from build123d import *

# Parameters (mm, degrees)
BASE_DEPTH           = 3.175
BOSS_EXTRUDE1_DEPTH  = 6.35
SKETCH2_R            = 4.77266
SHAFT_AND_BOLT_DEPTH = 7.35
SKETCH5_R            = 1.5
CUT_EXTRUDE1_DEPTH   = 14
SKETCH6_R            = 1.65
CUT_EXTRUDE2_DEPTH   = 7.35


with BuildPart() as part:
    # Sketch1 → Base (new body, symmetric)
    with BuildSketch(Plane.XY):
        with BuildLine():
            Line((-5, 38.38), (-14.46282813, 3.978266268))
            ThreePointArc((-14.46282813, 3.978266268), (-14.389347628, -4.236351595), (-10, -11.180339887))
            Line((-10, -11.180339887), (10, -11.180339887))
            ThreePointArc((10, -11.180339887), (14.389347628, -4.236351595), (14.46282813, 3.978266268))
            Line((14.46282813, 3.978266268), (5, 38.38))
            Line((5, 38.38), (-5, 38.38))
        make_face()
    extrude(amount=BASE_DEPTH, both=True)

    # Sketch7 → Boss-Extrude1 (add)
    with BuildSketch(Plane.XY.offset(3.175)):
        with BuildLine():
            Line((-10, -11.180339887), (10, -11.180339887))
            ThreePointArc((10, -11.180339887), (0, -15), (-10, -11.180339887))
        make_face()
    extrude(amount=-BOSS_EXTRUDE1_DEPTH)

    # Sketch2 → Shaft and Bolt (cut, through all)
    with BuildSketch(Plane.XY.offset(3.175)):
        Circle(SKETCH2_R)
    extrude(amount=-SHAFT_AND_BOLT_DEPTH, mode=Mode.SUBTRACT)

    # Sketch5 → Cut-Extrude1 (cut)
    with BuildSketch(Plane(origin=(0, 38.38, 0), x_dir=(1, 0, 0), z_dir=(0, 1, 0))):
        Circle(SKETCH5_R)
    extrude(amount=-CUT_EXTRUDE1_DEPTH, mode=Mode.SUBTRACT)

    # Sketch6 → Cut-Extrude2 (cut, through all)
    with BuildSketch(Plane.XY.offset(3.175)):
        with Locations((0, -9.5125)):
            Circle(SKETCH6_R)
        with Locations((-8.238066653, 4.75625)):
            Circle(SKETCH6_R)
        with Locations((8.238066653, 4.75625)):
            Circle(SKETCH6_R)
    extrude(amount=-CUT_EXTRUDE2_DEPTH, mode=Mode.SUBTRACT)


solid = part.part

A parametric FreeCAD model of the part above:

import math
import FreeCAD as App
import Part
import Sketcher
from FreeCAD import Vector
Q = App.Units.Quantity

doc = App.newDocument("Part")
body = doc.addObject("PartDesign::Body", "Body")

# Sketch on XY plane
sketch1 = doc.addObject("Sketcher::SketchObject", "Sketch")
body.addObject(sketch1)
sketch1.AttachmentSupport = (doc.XY_Plane, [""])
sketch1.MapMode = "FlatFace"
sketch1.addGeometry([
    Part.LineSegment(Vector(-5, 38, 0), Vector(-14, 4, 0)),  # 0
    Part.ArcOfCircle(Part.Circle(Vector(0, 0, 0), Vector(0, 0, 1), 15), math.radians(165), math.radians(228)),  # 1
    Part.LineSegment(Vector(-10, -11, 0), Vector(10, -11, 0)),  # 2
    Part.ArcOfCircle(Part.Circle(Vector(0, 0, 0), Vector(0, 0, 1), 15), math.radians(-48), math.radians(15)),  # 3
    Part.LineSegment(Vector(14, 4, 0), Vector(5, 38, 0)),  # 4
    Part.LineSegment(Vector(5, 38, 0), Vector(-5, 38, 0)),  # 5
], False)
sketch1.addConstraint([
    Sketcher.Constraint("Tangent", 0, 2, 1, 1),
    Sketcher.Constraint("Coincident", 1, 2, 2, 1),
    Sketcher.Constraint("Coincident", 2, 2, 3, 1),
    Sketcher.Constraint("Tangent", 3, 2, 4, 1),
    Sketcher.Constraint("Coincident", 4, 2, 5, 1),
    Sketcher.Constraint("Coincident", 5, 2, 0, 1),
    Sketcher.Constraint("Horizontal", 2),
    Sketcher.Constraint("Horizontal", 5),
    Sketcher.Constraint("Coincident", 1, 3, -1, 1),
    Sketcher.Constraint("Coincident", 3, 3, -1, 1),
    Sketcher.Constraint("Equal", 1, 3),
    Sketcher.Constraint("Horizontal", 0, 2, 3, 2),
    Sketcher.Constraint("Radius", 1, Q("15 mm")),
    Sketcher.Constraint("DistanceX", 2, 1, 2, 2, Q("20 mm")),
    Sketcher.Constraint("DistanceX", 5, 2, 5, 1, Q("10 mm")),
    Sketcher.Constraint("DistanceY", -1, 1, 4, 2, Q("38.38 mm")),
])
pad1 = doc.addObject("PartDesign::Pad", "Pad")
body.addObject(pad1)
pad1.Profile = sketch1
pad1.Length = 6.35
pad1.Midplane = True

# Sketch on XY plane
sketch2 = doc.addObject("Sketcher::SketchObject", "Sketch001")
body.addObject(sketch2)
sketch2.AttachmentSupport = (doc.XY_Plane, [""])
sketch2.MapMode = "FlatFace"
sketch2.AttachmentOffset = App.Placement(Vector(0, 0, 3.175), App.Rotation())
sketch2.addGeometry([
    Part.LineSegment(Vector(10, -11, 0), Vector(-10, -11, 0)),
    Part.ArcOfCircle(Part.Circle(Vector(0, 0, 0), Vector(0, 0, 1), 15), math.radians(-132), math.radians(-48)),
], False)
sketch2.addConstraint([
    Sketcher.Constraint("Coincident", 0, 1, 1, 2),
    Sketcher.Constraint("Coincident", 1, 1, 0, 2),
    Sketcher.Constraint("Horizontal", 0),
    Sketcher.Constraint("Coincident", 1, 3, -1, 1),
    Sketcher.Constraint("Radius", 1, Q("15 mm")),
    Sketcher.Constraint("DistanceX", 0, 2, 0, 1, Q("20 mm")),
])
pad2 = doc.addObject("PartDesign::Pad", "Pad001")
body.addObject(pad2)
pad2.Profile = sketch2
pad2.Length = 6.35
pad2.Reversed = True

# Sketch on XY plane
sketch3 = doc.addObject("Sketcher::SketchObject", "Sketch002")
body.addObject(sketch3)
sketch3.AttachmentSupport = (doc.XY_Plane, [""])
sketch3.MapMode = "FlatFace"
sketch3.AttachmentOffset = App.Placement(Vector(0, 0, 3.175), App.Rotation())
sketch3.addGeometry(Part.Circle(Vector(0, 0, 0), Vector(0, 0, 1), 4.8), False)
sketch3.addConstraint([
    Sketcher.Constraint("Coincident", 0, 3, -1, 1),
    Sketcher.Constraint("Diameter", 0, Q("9.54532 mm")),
])
pocket1 = doc.addObject("PartDesign::Pocket", "Pocket")
body.addObject(pocket1)
pocket1.Profile = sketch3
pocket1.Type = "ThroughAll"

# Sketch on XZ plane
sketch4 = doc.addObject("Sketcher::SketchObject", "Sketch003")
body.addObject(sketch4)
sketch4.AttachmentSupport = (doc.XZ_Plane, [""])
sketch4.MapMode = "FlatFace"
sketch4.AttachmentOffset = App.Placement(Vector(0, 0, -38.38), App.Rotation())
sketch4.addGeometry(Part.Circle(Vector(0, 0, 0), Vector(0, 0, 1), 1.5), False)
sketch4.addConstraint([
    Sketcher.Constraint("Coincident", 0, 3, -1, 1),
    Sketcher.Constraint("Diameter", 0, Q("3 mm")),
])
pocket2 = doc.addObject("PartDesign::Pocket", "Pocket001")
body.addObject(pocket2)
pocket2.Profile = sketch4
pocket2.Length = 14
pocket2.Reversed = True

# Sketch on XY plane
sketch5 = doc.addObject("Sketcher::SketchObject", "Sketch004")
body.addObject(sketch5)
sketch5.AttachmentSupport = (doc.XY_Plane, [""])
sketch5.MapMode = "FlatFace"
sketch5.AttachmentOffset = App.Placement(Vector(0, 0, 3.175), App.Rotation())
sketch5.addGeometry([
    Part.Circle(Vector(0, -9.5, 0), Vector(0, 0, 1), 1.6),
    Part.Circle(Vector(-8.2, 4.8, 0), Vector(0, 0, 1), 1.6),
    Part.Circle(Vector(8.2, 4.8, 0), Vector(0, 0, 1), 1.6),
], False)
sketch5.addConstraint([
    Sketcher.Constraint("Equal", 0, 1),
    Sketcher.Constraint("Equal", 1, 2),
    Sketcher.Constraint("Symmetric", 1, 3, 2, 3, -2),
    Sketcher.Constraint("PointOnObject", 0, 3, -2),
    Sketcher.Constraint("Diameter", 0, Q("3.3 mm")),
    Sketcher.Constraint("DistanceY", 0, 3, -1, 1, Q("9.5125 mm")),
    Sketcher.Constraint("DistanceY", -1, 1, 1, 3, Q("4.75625 mm")),
    Sketcher.Constraint("DistanceX", 1, 3, -1, 1, Q("8.238067 mm")),
])
pocket3 = doc.addObject("PartDesign::Pocket", "Pocket002")
body.addObject(pocket3)
pocket3.Profile = sketch5
pocket3.Type = "ThroughAll"

doc.recompute()
